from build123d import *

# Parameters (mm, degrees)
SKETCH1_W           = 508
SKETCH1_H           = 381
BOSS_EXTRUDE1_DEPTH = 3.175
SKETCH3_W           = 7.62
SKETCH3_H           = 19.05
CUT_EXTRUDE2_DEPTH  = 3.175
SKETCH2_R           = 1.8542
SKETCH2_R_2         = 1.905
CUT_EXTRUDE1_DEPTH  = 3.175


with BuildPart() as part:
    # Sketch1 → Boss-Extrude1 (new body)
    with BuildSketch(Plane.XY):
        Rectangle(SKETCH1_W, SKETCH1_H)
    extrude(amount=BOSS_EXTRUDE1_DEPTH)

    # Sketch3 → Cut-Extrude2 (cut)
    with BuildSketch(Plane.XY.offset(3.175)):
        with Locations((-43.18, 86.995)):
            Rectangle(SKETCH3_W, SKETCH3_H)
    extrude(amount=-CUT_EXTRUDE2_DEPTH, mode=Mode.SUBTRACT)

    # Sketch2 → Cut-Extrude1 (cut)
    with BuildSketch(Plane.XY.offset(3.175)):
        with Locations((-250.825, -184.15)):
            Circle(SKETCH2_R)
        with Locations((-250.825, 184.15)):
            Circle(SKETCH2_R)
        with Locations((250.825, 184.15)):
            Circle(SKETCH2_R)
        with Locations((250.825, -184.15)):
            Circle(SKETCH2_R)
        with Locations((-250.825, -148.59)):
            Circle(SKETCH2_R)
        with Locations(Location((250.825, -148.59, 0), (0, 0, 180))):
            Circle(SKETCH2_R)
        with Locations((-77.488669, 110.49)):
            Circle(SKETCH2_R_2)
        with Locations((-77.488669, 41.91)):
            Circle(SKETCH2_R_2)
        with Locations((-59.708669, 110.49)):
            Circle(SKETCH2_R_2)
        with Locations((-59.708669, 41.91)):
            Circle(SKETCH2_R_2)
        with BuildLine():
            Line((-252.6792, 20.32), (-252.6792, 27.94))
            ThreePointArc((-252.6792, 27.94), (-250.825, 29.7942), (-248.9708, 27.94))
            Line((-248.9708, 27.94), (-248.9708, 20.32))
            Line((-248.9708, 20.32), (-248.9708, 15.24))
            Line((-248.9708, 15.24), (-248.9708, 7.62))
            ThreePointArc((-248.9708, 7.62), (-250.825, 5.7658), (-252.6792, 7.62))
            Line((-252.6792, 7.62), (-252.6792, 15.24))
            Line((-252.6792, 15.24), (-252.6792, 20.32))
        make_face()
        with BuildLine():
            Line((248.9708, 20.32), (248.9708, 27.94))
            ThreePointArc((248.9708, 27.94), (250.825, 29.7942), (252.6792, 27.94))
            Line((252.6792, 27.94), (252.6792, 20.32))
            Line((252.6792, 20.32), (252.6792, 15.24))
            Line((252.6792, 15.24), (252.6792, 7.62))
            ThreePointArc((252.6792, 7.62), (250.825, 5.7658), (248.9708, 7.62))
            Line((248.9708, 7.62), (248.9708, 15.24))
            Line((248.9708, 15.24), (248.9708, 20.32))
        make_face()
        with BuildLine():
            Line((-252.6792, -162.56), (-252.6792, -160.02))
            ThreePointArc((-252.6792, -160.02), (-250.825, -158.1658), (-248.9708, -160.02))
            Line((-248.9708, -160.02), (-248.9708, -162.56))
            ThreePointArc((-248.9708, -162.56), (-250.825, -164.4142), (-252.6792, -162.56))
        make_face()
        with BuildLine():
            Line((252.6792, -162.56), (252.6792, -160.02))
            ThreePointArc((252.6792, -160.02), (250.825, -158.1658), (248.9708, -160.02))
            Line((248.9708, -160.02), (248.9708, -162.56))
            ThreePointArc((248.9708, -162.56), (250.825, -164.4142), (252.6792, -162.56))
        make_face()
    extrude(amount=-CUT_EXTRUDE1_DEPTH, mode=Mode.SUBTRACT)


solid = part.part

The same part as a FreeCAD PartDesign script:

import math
import FreeCAD as App
import Part
import Sketcher

V = App.Vector
Q = App.Units.Quantity

doc = App.newDocument("Part")
body = doc.addObject("PartDesign::Body", "Body")

sketch1 = body.newObject("Sketcher::SketchObject", "Sketch")
sketch1.AttachmentSupport = (doc.getObject("XY_Plane"), [""])
sketch1.MapMode = "FlatFace"
sketch1.addGeometry([
    Part.LineSegment(V(-254, 190, 0), V(-254, -190, 0)),
    Part.LineSegment(V(-254, -190, 0), V(254, -190, 0)),
    Part.LineSegment(V(254, -190, 0), V(254, 190, 0)),
    Part.LineSegment(V(254, 190, 0), V(-254, 190, 0)),
], False)
sketch1.addConstraint([
    Sketcher.Constraint("Coincident", 0, 2, 1, 1),
    Sketcher.Constraint("Coincident", 1, 2, 2, 1),
    Sketcher.Constraint("Coincident", 2, 2, 3, 1),
    Sketcher.Constraint("Coincident", 3, 2, 0, 1),
    Sketcher.Constraint("Vertical", 0),
    Sketcher.Constraint("Horizontal", 1),
    Sketcher.Constraint("Vertical", 2),
    Sketcher.Constraint("Horizontal", 3),
    Sketcher.Constraint("Symmetric", 0, 2, 2, 2, -1, 1),
    Sketcher.Constraint("DistanceX", 1, 1, 1, 2, Q("20 in")),
    Sketcher.Constraint("DistanceY", 0, 2, 0, 1, Q("15 in")),
])
pad1 = body.newObject("PartDesign::Pad", "Pad")
pad1.Profile = sketch1
pad1.Length = Q("0.125 in")

sketch2 = body.newObject("Sketcher::SketchObject", "Sketch001")
sketch2.AttachmentSupport = (doc.getObject("XY_Plane"), [""])
sketch2.MapMode = "FlatFace"
sketch2.AttachmentOffset = App.Placement(V(0, 0, 0.125 * 25.4), App.Rotation())
sketch2.addGeometry([
    Part.LineSegment(V(-47, 97, 0), V(-47, 77, 0)),
    Part.LineSegment(V(-47, 77, 0), V(-39, 77, 0)),
    Part.LineSegment(V(-39, 77, 0), V(-39, 97, 0)),
    Part.LineSegment(V(-39, 97, 0), V(-47, 97, 0)),
], False)
sketch2.addConstraint([
    Sketcher.Constraint("Coincident", 0, 2, 1, 1),
    Sketcher.Constraint("Coincident", 1, 2, 2, 1),
    Sketcher.Constraint("Coincident", 2, 2, 3, 1),
    Sketcher.Constraint("Coincident", 3, 2, 0, 1),
    Sketcher.Constraint("Vertical", 0),
    Sketcher.Constraint("Horizontal", 1),
    Sketcher.Constraint("Vertical", 2),
    Sketcher.Constraint("Horizontal", 3),
    Sketcher.Constraint("DistanceX", 1, 1, 1, 2, Q("0.3 in")),
    Sketcher.Constraint("DistanceY", 0, 2, 0, 1, Q("0.75 in")),
    Sketcher.Constraint("DistanceY", -1, 1, 2, 2, Q("3.8 in")),
    Sketcher.Constraint("DistanceX", 0, 2, -1, 1, Q("1.85 in")),
])
pocket1 = body.newObject("PartDesign::Pocket", "Pocket")
pocket1.Profile = sketch2
pocket1.Length = Q("0.125 in")

sketch3 = body.newObject("Sketcher::SketchObject", "Sketch002")
sketch3.AttachmentSupport = (doc.getObject("XY_Plane"), [""])
sketch3.MapMode = "FlatFace"
sketch3.AttachmentOffset = App.Placement(V(0, 0, 0.125 * 25.4), App.Rotation())
sketch3.addGeometry([
    Part.Circle(V(-250.8, -184.2, 0), V(0, 0, 1), 1.9),
    Part.Circle(V(-250.8, 184.2, 0), V(0, 0, 1), 1.9),
    Part.Circle(V(250.8, 184.2, 0), V(0, 0, 1), 1.9),
    Part.Circle(V(250.8, -184.2, 0), V(0, 0, 1), 1.9),
    Part.Circle(V(-250.8, -148.6, 0), V(0, 0, 1), 1.9),
    Part.Circle(V(250.8, -148.6, 0), V(0, 0, 1), 1.9),
    Part.Circle(V(-77.5, 110.5, 0), V(0, 0, 1), 1.9),
    Part.Circle(V(-77.5, 41.9, 0), V(0, 0, 1), 1.9),
    Part.Circle(V(-59.7, 110.5, 0), V(0, 0, 1), 1.9),
    Part.Circle(V(-59.7, 41.9, 0), V(0, 0, 1), 1.9),
    Part.ArcOfCircle(Part.Circle(V(-250.8, 27.9, 0), V(0, 0, 1), 1.9), math.radians(0), math.radians(180)),
    Part.LineSegment(V(-252.7, 27.9, 0), V(-252.7, 7.6, 0)),
    Part.ArcOfCircle(Part.Circle(V(-250.8, 7.6, 0), V(0, 0, 1), 1.9), math.radians(180), math.radians(360)),
    Part.LineSegment(V(-249, 7.6, 0), V(-249, 27.9, 0)),
    Part.ArcOfCircle(Part.Circle(V(250.8, 27.9, 0), V(0, 0, 1), 1.9), math.radians(0), math.radians(180)),
    Part.LineSegment(V(249, 27.9, 0), V(249, 7.6, 0)),
    Part.ArcOfCircle(Part.Circle(V(250.8, 7.6, 0), V(0, 0, 1), 1.9), math.radians(180), math.radians(360)),
    Part.LineSegment(V(252.7, 7.6, 0), V(252.7, 27.9, 0)),
    Part.LineSegment(V(-252.7, -160, 0), V(-252.7, -162.6, 0)),
    Part.ArcOfCircle(Part.Circle(V(-250.8, -162.6, 0), V(0, 0, 1), 1.9), math.radians(180), math.radians(360)),
    Part.LineSegment(V(-249, -162.6, 0), V(-249, -160, 0)),
    Part.ArcOfCircle(Part.Circle(V(-250.8, -160, 0), V(0, 0, 1), 1.9), math.radians(0), math.radians(180)),
    Part.LineSegment(V(252.7, -162.6, 0), V(252.7, -160, 0)),
    Part.ArcOfCircle(Part.Circle(V(250.8, -160, 0), V(0, 0, 1), 1.9), math.radians(0), math.radians(180)),
    Part.LineSegment(V(249, -160, 0), V(249, -162.6, 0)),
    Part.ArcOfCircle(Part.Circle(V(250.8, -162.6, 0), V(0, 0, 1), 1.9), math.radians(180), math.radians(360)),
], False)
sketch3.addConstraint([
    Sketcher.Constraint("Tangent", 10, 2, 11, 1),
    Sketcher.Constraint("Tangent", 11, 2, 12, 1),
    Sketcher.Constraint("Tangent", 12, 2, 13, 1),
    Sketcher.Constraint("Tangent", 13, 2, 10, 1),
    Sketcher.Constraint("Tangent", 14, 2, 15, 1),
    Sketcher.Constraint("Tangent", 15, 2, 16, 1),
    Sketcher.Constraint("Tangent", 16, 2, 17, 1),
    Sketcher.Constraint("Tangent", 17, 2, 14, 1),
    Sketcher.Constraint("Tangent", 18, 2, 19, 1),
    Sketcher.Constraint("Tangent", 19, 2, 20, 1),
    Sketcher.Constraint("Tangent", 20, 2, 21, 1),
    Sketcher.Constraint("Tangent", 21, 2, 18, 1),
    Sketcher.Constraint("Tangent", 22, 2, 23, 1),
    Sketcher.Constraint("Tangent", 23, 2, 24, 1),
    Sketcher.Constraint("Tangent", 24, 2, 25, 1),
    Sketcher.Constraint("Tangent", 25, 2, 22, 1),
    Sketcher.Constraint("Vertical", 11),
    Sketcher.Constraint("Vertical", 13),
    Sketcher.Constraint("Vertical", 15),
    Sketcher.Constraint("Vertical", 17),
    Sketcher.Constraint("Vertical", 18),
    Sketcher.Constraint("Vertical", 20),
    Sketcher.Constraint("Vertical", 22),
    Sketcher.Constraint("Vertical", 24),
    Sketcher.Constraint("Equal", 0, 1),
    Sketcher.Constraint("Equal", 1, 2),
    Sketcher.Constraint("Equal", 2, 3),
    Sketcher.Constraint("Equal", 3, 4),
    Sketcher.Constraint("Equal", 4, 5),
    Sketcher.Constraint("Equal", 6, 7),
    Sketcher.Constraint("Equal", 7, 8),
    Sketcher.Constraint("Equal", 8, 9),
    Sketcher.Constraint("Equal", 5, 10),
    Sketcher.Constraint("Equal", 12, 14),
    Sketcher.Constraint("Equal", 16, 19),
    Sketcher.Constraint("Equal", 21, 23),
    Sketcher.Constraint("Symmetric", 0, 3, 2, 3, -1, 1),
    Sketcher.Constraint("Symmetric", 1, 3, 3, 3, -1, 1),
    Sketcher.Constraint("Symmetric", 1, 3, 2, 3, -2),
    Sketcher.Constraint("Symmetric", 4, 3, 5, 3, -2),
    Sketcher.Constraint("Symmetric", 10, 3, 14, 3, -2),
    Sketcher.Constraint("Symmetric", 21, 3, 23, 3, -2),
    Sketcher.Constraint("Horizontal", 6, 3, 8, 3),
    Sketcher.Constraint("Horizontal", 7, 3, 9, 3),
    Sketcher.Constraint("Horizontal", 12, 3, 16, 3),
    Sketcher.Constraint("Horizontal", 19, 3, 25, 3),
    Sketcher.Constraint("Vertical", 1, 3, 4, 3),
    Sketcher.Constraint("Vertical", 6, 3, 7, 3),
    Sketcher.Constraint("Vertical", 8, 3, 9, 3),
    Sketcher.Constraint("Vertical", 4, 3, 10, 3),
    Sketcher.Constraint("Vertical", 12, 3, 19, 3),
    Sketcher.Constraint("Diameter", 6, Q("0.15 in")),
    Sketcher.Constraint("Diameter", 0, Q("0.146 in")),
    Sketcher.Constraint("DistanceY", 11, 2, 11, 1, Q("0.8 in")),
    Sketcher.Constraint("DistanceY", 18, 2, 18, 1, Q("0.1 in")),
    Sketcher.Constraint("DistanceY", -1, 1, 10, 3, Q("1.1 in")),
    Sketcher.Constraint("DistanceY", 19, 3, -1, 1, Q("6.4 in")),
    Sketcher.Constraint("DistanceY", 0, 3, 1, 3, Q("14.5 in")),
    Sketcher.Constraint("DistanceY", 0, 3, 4, 3, Q("1.4 in")),
    Sketcher.Constraint("DistanceY", 6, 3, 1, 3, Q("2.9 in")),
    Sketcher.Constraint("DistanceY", 7, 3, 6, 3, Q("2.7 in")),
    Sketcher.Constraint("DistanceX", 6, 3, 8, 3, Q("0.7 in")),
    Sketcher.Constraint("DistanceX", 1, 3, 2, 3, Q("19.75 in")),
    Sketcher.Constraint("DistanceX", 6, 3, -1, 1, Q("77.488669 mm")),
])
pocket2 = body.newObject("PartDesign::Pocket", "Pocket001")
pocket2.Profile = sketch3
pocket2.Length = Q("0.125 in")

doc.recompute()
